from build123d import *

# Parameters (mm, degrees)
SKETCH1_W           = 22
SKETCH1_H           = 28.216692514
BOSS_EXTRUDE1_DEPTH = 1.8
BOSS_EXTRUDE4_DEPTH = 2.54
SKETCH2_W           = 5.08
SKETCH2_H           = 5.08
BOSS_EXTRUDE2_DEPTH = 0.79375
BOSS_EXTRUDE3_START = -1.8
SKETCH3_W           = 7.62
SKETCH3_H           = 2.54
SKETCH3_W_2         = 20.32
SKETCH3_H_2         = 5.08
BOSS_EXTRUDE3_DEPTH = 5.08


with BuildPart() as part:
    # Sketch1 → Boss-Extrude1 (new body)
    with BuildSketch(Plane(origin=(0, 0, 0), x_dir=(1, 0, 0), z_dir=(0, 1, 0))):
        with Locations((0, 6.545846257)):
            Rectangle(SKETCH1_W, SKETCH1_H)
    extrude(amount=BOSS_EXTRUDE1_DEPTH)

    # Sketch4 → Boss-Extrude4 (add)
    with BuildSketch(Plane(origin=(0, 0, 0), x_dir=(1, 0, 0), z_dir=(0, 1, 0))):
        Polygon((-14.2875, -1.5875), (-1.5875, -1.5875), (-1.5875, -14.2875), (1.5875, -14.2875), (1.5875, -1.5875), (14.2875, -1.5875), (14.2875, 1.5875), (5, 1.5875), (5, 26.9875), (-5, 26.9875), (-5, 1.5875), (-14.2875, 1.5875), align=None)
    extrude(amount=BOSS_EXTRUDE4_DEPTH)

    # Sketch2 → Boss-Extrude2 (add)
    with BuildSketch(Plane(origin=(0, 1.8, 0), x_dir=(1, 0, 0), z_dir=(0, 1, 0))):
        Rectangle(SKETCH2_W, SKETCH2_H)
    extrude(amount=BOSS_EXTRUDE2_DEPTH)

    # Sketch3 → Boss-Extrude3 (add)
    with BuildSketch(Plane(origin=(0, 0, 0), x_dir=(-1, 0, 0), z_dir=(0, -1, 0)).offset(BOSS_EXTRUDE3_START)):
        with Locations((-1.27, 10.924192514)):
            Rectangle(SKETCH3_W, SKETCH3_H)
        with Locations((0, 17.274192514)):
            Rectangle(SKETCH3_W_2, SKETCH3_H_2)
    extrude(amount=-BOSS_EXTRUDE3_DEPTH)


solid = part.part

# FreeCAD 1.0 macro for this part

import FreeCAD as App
import Part
import Sketcher

V = App.Vector
Q = App.Units.Quantity

doc = App.newDocument("Part")
body = doc.addObject("PartDesign::Body", "Body")

# Sketch on XZ plane
sketch1 = doc.addObject("Sketcher::SketchObject", "Sketch")
body.addObject(sketch1)
sketch1.AttachmentSupport = (doc.XZ_Plane, [""])
sketch1.MapMode = "FlatFace"
sketch1.addGeometry([
    Part.LineSegment(V(-11, -20.654193, 0), V(-11, 7.5625, 0)),
    Part.LineSegment(V(-11, 7.5625, 0), V(11, 7.5625, 0)),
    Part.LineSegment(V(11, 7.5625, 0), V(11, -20.654193, 0)),
    Part.LineSegment(V(11, -20.654193, 0), V(-11, -20.654193, 0)),
], False)
sketch1.addConstraint([
    Sketcher.Constraint("Coincident", 0, 2, 1, 1),
    Sketcher.Constraint("Coincident", 1, 2, 2, 1),
    Sketcher.Constraint("Coincident", 2, 2, 3, 1),
    Sketcher.Constraint("Coincident", 3, 2, 0, 1),
    Sketcher.Constraint("Vertical", 0),
    Sketcher.Constraint("Horizontal", 1),
    Sketcher.Constraint("Vertical", 2),
    Sketcher.Constraint("Horizontal", 3),
    Sketcher.Constraint("DistanceX", 1, 1, 1, 2, 22.0),
    Sketcher.Constraint("DistanceX", 0, 2, -1, 1, 11.0),
    Sketcher.Constraint("DistanceY", -1, 1, 0, 2, 7.5625),
    Sketcher.Constraint("DistanceY", 0, 1, 0, 2, 28.216693),
])
pad1 = doc.addObject("PartDesign::Pad", "Pad")
body.addObject(pad1)
pad1.Profile = sketch1
pad1.Length = 1.8
pad1.Reversed = True

# Sketch on XZ plane
sketch2 = doc.addObject("Sketcher::SketchObject", "Sketch001")
body.addObject(sketch2)
sketch2.AttachmentSupport = (doc.XZ_Plane, [""])
sketch2.MapMode = "FlatFace"
sketch2.addGeometry([
    Part.LineSegment(V(-14.2875, 1.5875, 0), V(-1.5875, 1.5875, 0)),  # 0
    Part.LineSegment(V(-1.5875, 1.5875, 0), V(-1.5875, 14.2875, 0)),  # 1
    Part.LineSegment(V(-1.5875, 14.2875, 0), V(1.5875, 14.2875, 0)),  # 2
    Part.LineSegment(V(1.5875, 14.2875, 0), V(1.5875, 1.5875, 0)),  # 3
    Part.LineSegment(V(1.5875, 1.5875, 0), V(14.2875, 1.5875, 0)),  # 4
    Part.LineSegment(V(14.2875, 1.5875, 0), V(14.2875, -1.5875, 0)),  # 5
    Part.LineSegment(V(14.2875, -1.5875, 0), V(5, -1.5875, 0)),  # 6
    Part.LineSegment(V(5, -1.5875, 0), V(5, -26.9875, 0)),  # 7
    Part.LineSegment(V(5, -26.9875, 0), V(-5, -26.9875, 0)),  # 8
    Part.LineSegment(V(-5, -26.9875, 0), V(-5, -1.5875, 0)),  # 9
    Part.LineSegment(V(-5, -1.5875, 0), V(-14.2875, -1.5875, 0)),  # 10
    Part.LineSegment(V(-14.2875, -1.5875, 0), V(-14.2875, 1.5875, 0)),  # 11
], False)
sketch2.addConstraint([
    Sketcher.Constraint("Coincident", 0, 2, 1, 1),
    Sketcher.Constraint("Coincident", 1, 2, 2, 1),
    Sketcher.Constraint("Coincident", 2, 2, 3, 1),
    Sketcher.Constraint("Coincident", 3, 2, 4, 1),
    Sketcher.Constraint("Coincident", 4, 2, 5, 1),
    Sketcher.Constraint("Coincident", 5, 2, 6, 1),
    Sketcher.Constraint("Coincident", 6, 2, 7, 1),
    Sketcher.Constraint("Coincident", 7, 2, 8, 1),
    Sketcher.Constraint("Coincident", 8, 2, 9, 1),
    Sketcher.Constraint("Coincident", 9, 2, 10, 1),
    Sketcher.Constraint("Coincident", 10, 2, 11, 1),
    Sketcher.Constraint("Coincident", 11, 2, 0, 1),
    Sketcher.Constraint("Horizontal", 0),
    Sketcher.Constraint("Vertical", 1),
    Sketcher.Constraint("Horizontal", 2),
    Sketcher.Constraint("Vertical", 3),
    Sketcher.Constraint("Horizontal", 4),
    Sketcher.Constraint("Vertical", 5),
    Sketcher.Constraint("Horizontal", 6),
    Sketcher.Constraint("Vertical", 7),
    Sketcher.Constraint("Horizontal", 8),
    Sketcher.Constraint("Vertical", 9),
    Sketcher.Constraint("Horizontal", 10),
    Sketcher.Constraint("Vertical", 11),
    Sketcher.Constraint("Symmetric", 4, 2, 10, 2, -1, 1),
    Sketcher.Constraint("Symmetric", 0, 2, 3, 2, -2),
    Sketcher.Constraint("Symmetric", 6, 2, 9, 2, -2),
    Sketcher.Constraint("Equal", 4, 1),
    Sketcher.Constraint("Equal", 2, 5),
    Sketcher.Constraint("DistanceY", 7, 2, 7, 1, Q("1 in")),
    Sketcher.Constraint("DistanceX", 0, 1, 0, 2, Q("0.5 in")),
    Sketcher.Constraint("DistanceX", 2, 1, 2, 2, Q("0.125 in")),
    Sketcher.Constraint("DistanceX", 6, 2, 6, 1, 9.2875),
])
pad2 = doc.addObject("PartDesign::Pad", "Pad001")
body.addObject(pad2)
pad2.Profile = sketch2
pad2.Length = Q("0.1 in")
pad2.Reversed = True

# Sketch on XZ plane
sketch3 = doc.addObject("Sketcher::SketchObject", "Sketch002")
body.addObject(sketch3)
sketch3.AttachmentSupport = (doc.XZ_Plane, [""])
sketch3.MapMode = "FlatFace"
sketch3.AttachmentOffset = App.Placement(V(0, 0, -1.8), App.Rotation())
sketch3.addGeometry([
    Part.LineSegment(V(-2.54, -2.54, 0), V(-2.54, 2.54, 0)),
    Part.LineSegment(V(-2.54, 2.54, 0), V(2.54, 2.54, 0)),
    Part.LineSegment(V(2.54, 2.54, 0), V(2.54, -2.54, 0)),
    Part.LineSegment(V(2.54, -2.54, 0), V(-2.54, -2.54, 0)),
], False)
sketch3.addConstraint([
    Sketcher.Constraint("Coincident", 0, 2, 1, 1),
    Sketcher.Constraint("Coincident", 1, 2, 2, 1),
    Sketcher.Constraint("Coincident", 2, 2, 3, 1),
    Sketcher.Constraint("Coincident", 3, 2, 0, 1),
    Sketcher.Constraint("Vertical", 0),
    Sketcher.Constraint("Horizontal", 1),
    Sketcher.Constraint("Vertical", 2),
    Sketcher.Constraint("Horizontal", 3),
    Sketcher.Constraint("Symmetric", 0, 2, 2, 2, -1, 1),
    Sketcher.Constraint("Equal", 3, 0),
    Sketcher.Constraint("DistanceX", 1, 1, 1, 2, Q("0.2 in")),
])
pad3 = doc.addObject("PartDesign::Pad", "Pad002")
body.addObject(pad3)
pad3.Profile = sketch3
pad3.Length = Q("0.03125 in")
pad3.Reversed = True

# Sketch on XZ plane
sketch4 = doc.addObject("Sketcher::SketchObject", "Sketch003")
body.addObject(sketch4)
sketch4.AttachmentSupport = (doc.XZ_Plane, [""])
sketch4.MapMode = "FlatFace"
sketch4.AttachmentOffset = App.Placement(V(0, 0, -1.8), App.Rotation())
sketch4.addGeometry([
    Part.LineSegment(V(5.08, -12.194193, 0), V(5.08, -9.654193, 0)),  # 0
    Part.LineSegment(V(5.08, -9.654193, 0), V(-2.54, -9.654193, 0)),  # 1
    Part.LineSegment(V(-2.54, -9.654193, 0), V(-2.54, -12.194193, 0)),  # 2
    Part.LineSegment(V(-2.54, -12.194193, 0), V(5.08, -12.194193, 0)),  # 3
    Part.LineSegment(V(10.16, -19.814193, 0), V(10.16, -14.734193, 0)),  # 4
    Part.LineSegment(V(10.16, -14.734193, 0), V(-10.16, -14.734193, 0)),  # 5
    Part.LineSegment(V(-10.16, -14.734193, 0), V(-10.16, -19.814193, 0)),  # 6
    Part.LineSegment(V(-10.16, -19.814193, 0), V(10.16, -19.814193, 0)),  # 7
], False)
sketch4.addConstraint([
    Sketcher.Constraint("Coincident", 0, 2, 1, 1),
    Sketcher.Constraint("Coincident", 1, 2, 2, 1),
    Sketcher.Constraint("Coincident", 2, 2, 3, 1),
    Sketcher.Constraint("Coincident", 3, 2, 0, 1),
    Sketcher.Constraint("Coincident", 4, 2, 5, 1),
    Sketcher.Constraint("Coincident", 5, 2, 6, 1),
    Sketcher.Constraint("Coincident", 6, 2, 7, 1),
    Sketcher.Constraint("Coincident", 7, 2, 4, 1),
    Sketcher.Constraint("Vertical", 0),
    Sketcher.Constraint("Horizontal", 1),
    Sketcher.Constraint("Vertical", 2),
    Sketcher.Constraint("Horizontal", 3),
    Sketcher.Constraint("Vertical", 4),
    Sketcher.Constraint("Horizontal", 5),
    Sketcher.Constraint("Vertical", 6),
    Sketcher.Constraint("Horizontal", 7),
    Sketcher.Constraint("DistanceX", 1, 2, 1, 1, Q("0.3 in")),
    Sketcher.Constraint("DistanceX", 5, 2, 5, 1, Q("0.8 in")),
    Sketcher.Constraint("DistanceY", 0, 1, 0, 2, Q("0.1 in")),
    Sketcher.Constraint("DistanceY", 4, 1, 4, 2, Q("0.2 in")),
    Sketcher.Constraint("DistanceX", -1, 1, 0, 2, Q("0.2 in")),
    Sketcher.Constraint("DistanceX", -1, 1, 4, 2, Q("0.4 in")),
    Sketcher.Constraint("DistanceY", 4, 2, 3, 2, Q("0.1 in")),
    Sketcher.Constraint("DistanceY", 0, 2, -1, 1, 9.654193),
])
pad4 = doc.addObject("PartDesign::Pad", "Pad003")
body.addObject(pad4)
pad4.Profile = sketch4
pad4.Length = Q("0.2 in")
pad4.Reversed = True

doc.recompute()
